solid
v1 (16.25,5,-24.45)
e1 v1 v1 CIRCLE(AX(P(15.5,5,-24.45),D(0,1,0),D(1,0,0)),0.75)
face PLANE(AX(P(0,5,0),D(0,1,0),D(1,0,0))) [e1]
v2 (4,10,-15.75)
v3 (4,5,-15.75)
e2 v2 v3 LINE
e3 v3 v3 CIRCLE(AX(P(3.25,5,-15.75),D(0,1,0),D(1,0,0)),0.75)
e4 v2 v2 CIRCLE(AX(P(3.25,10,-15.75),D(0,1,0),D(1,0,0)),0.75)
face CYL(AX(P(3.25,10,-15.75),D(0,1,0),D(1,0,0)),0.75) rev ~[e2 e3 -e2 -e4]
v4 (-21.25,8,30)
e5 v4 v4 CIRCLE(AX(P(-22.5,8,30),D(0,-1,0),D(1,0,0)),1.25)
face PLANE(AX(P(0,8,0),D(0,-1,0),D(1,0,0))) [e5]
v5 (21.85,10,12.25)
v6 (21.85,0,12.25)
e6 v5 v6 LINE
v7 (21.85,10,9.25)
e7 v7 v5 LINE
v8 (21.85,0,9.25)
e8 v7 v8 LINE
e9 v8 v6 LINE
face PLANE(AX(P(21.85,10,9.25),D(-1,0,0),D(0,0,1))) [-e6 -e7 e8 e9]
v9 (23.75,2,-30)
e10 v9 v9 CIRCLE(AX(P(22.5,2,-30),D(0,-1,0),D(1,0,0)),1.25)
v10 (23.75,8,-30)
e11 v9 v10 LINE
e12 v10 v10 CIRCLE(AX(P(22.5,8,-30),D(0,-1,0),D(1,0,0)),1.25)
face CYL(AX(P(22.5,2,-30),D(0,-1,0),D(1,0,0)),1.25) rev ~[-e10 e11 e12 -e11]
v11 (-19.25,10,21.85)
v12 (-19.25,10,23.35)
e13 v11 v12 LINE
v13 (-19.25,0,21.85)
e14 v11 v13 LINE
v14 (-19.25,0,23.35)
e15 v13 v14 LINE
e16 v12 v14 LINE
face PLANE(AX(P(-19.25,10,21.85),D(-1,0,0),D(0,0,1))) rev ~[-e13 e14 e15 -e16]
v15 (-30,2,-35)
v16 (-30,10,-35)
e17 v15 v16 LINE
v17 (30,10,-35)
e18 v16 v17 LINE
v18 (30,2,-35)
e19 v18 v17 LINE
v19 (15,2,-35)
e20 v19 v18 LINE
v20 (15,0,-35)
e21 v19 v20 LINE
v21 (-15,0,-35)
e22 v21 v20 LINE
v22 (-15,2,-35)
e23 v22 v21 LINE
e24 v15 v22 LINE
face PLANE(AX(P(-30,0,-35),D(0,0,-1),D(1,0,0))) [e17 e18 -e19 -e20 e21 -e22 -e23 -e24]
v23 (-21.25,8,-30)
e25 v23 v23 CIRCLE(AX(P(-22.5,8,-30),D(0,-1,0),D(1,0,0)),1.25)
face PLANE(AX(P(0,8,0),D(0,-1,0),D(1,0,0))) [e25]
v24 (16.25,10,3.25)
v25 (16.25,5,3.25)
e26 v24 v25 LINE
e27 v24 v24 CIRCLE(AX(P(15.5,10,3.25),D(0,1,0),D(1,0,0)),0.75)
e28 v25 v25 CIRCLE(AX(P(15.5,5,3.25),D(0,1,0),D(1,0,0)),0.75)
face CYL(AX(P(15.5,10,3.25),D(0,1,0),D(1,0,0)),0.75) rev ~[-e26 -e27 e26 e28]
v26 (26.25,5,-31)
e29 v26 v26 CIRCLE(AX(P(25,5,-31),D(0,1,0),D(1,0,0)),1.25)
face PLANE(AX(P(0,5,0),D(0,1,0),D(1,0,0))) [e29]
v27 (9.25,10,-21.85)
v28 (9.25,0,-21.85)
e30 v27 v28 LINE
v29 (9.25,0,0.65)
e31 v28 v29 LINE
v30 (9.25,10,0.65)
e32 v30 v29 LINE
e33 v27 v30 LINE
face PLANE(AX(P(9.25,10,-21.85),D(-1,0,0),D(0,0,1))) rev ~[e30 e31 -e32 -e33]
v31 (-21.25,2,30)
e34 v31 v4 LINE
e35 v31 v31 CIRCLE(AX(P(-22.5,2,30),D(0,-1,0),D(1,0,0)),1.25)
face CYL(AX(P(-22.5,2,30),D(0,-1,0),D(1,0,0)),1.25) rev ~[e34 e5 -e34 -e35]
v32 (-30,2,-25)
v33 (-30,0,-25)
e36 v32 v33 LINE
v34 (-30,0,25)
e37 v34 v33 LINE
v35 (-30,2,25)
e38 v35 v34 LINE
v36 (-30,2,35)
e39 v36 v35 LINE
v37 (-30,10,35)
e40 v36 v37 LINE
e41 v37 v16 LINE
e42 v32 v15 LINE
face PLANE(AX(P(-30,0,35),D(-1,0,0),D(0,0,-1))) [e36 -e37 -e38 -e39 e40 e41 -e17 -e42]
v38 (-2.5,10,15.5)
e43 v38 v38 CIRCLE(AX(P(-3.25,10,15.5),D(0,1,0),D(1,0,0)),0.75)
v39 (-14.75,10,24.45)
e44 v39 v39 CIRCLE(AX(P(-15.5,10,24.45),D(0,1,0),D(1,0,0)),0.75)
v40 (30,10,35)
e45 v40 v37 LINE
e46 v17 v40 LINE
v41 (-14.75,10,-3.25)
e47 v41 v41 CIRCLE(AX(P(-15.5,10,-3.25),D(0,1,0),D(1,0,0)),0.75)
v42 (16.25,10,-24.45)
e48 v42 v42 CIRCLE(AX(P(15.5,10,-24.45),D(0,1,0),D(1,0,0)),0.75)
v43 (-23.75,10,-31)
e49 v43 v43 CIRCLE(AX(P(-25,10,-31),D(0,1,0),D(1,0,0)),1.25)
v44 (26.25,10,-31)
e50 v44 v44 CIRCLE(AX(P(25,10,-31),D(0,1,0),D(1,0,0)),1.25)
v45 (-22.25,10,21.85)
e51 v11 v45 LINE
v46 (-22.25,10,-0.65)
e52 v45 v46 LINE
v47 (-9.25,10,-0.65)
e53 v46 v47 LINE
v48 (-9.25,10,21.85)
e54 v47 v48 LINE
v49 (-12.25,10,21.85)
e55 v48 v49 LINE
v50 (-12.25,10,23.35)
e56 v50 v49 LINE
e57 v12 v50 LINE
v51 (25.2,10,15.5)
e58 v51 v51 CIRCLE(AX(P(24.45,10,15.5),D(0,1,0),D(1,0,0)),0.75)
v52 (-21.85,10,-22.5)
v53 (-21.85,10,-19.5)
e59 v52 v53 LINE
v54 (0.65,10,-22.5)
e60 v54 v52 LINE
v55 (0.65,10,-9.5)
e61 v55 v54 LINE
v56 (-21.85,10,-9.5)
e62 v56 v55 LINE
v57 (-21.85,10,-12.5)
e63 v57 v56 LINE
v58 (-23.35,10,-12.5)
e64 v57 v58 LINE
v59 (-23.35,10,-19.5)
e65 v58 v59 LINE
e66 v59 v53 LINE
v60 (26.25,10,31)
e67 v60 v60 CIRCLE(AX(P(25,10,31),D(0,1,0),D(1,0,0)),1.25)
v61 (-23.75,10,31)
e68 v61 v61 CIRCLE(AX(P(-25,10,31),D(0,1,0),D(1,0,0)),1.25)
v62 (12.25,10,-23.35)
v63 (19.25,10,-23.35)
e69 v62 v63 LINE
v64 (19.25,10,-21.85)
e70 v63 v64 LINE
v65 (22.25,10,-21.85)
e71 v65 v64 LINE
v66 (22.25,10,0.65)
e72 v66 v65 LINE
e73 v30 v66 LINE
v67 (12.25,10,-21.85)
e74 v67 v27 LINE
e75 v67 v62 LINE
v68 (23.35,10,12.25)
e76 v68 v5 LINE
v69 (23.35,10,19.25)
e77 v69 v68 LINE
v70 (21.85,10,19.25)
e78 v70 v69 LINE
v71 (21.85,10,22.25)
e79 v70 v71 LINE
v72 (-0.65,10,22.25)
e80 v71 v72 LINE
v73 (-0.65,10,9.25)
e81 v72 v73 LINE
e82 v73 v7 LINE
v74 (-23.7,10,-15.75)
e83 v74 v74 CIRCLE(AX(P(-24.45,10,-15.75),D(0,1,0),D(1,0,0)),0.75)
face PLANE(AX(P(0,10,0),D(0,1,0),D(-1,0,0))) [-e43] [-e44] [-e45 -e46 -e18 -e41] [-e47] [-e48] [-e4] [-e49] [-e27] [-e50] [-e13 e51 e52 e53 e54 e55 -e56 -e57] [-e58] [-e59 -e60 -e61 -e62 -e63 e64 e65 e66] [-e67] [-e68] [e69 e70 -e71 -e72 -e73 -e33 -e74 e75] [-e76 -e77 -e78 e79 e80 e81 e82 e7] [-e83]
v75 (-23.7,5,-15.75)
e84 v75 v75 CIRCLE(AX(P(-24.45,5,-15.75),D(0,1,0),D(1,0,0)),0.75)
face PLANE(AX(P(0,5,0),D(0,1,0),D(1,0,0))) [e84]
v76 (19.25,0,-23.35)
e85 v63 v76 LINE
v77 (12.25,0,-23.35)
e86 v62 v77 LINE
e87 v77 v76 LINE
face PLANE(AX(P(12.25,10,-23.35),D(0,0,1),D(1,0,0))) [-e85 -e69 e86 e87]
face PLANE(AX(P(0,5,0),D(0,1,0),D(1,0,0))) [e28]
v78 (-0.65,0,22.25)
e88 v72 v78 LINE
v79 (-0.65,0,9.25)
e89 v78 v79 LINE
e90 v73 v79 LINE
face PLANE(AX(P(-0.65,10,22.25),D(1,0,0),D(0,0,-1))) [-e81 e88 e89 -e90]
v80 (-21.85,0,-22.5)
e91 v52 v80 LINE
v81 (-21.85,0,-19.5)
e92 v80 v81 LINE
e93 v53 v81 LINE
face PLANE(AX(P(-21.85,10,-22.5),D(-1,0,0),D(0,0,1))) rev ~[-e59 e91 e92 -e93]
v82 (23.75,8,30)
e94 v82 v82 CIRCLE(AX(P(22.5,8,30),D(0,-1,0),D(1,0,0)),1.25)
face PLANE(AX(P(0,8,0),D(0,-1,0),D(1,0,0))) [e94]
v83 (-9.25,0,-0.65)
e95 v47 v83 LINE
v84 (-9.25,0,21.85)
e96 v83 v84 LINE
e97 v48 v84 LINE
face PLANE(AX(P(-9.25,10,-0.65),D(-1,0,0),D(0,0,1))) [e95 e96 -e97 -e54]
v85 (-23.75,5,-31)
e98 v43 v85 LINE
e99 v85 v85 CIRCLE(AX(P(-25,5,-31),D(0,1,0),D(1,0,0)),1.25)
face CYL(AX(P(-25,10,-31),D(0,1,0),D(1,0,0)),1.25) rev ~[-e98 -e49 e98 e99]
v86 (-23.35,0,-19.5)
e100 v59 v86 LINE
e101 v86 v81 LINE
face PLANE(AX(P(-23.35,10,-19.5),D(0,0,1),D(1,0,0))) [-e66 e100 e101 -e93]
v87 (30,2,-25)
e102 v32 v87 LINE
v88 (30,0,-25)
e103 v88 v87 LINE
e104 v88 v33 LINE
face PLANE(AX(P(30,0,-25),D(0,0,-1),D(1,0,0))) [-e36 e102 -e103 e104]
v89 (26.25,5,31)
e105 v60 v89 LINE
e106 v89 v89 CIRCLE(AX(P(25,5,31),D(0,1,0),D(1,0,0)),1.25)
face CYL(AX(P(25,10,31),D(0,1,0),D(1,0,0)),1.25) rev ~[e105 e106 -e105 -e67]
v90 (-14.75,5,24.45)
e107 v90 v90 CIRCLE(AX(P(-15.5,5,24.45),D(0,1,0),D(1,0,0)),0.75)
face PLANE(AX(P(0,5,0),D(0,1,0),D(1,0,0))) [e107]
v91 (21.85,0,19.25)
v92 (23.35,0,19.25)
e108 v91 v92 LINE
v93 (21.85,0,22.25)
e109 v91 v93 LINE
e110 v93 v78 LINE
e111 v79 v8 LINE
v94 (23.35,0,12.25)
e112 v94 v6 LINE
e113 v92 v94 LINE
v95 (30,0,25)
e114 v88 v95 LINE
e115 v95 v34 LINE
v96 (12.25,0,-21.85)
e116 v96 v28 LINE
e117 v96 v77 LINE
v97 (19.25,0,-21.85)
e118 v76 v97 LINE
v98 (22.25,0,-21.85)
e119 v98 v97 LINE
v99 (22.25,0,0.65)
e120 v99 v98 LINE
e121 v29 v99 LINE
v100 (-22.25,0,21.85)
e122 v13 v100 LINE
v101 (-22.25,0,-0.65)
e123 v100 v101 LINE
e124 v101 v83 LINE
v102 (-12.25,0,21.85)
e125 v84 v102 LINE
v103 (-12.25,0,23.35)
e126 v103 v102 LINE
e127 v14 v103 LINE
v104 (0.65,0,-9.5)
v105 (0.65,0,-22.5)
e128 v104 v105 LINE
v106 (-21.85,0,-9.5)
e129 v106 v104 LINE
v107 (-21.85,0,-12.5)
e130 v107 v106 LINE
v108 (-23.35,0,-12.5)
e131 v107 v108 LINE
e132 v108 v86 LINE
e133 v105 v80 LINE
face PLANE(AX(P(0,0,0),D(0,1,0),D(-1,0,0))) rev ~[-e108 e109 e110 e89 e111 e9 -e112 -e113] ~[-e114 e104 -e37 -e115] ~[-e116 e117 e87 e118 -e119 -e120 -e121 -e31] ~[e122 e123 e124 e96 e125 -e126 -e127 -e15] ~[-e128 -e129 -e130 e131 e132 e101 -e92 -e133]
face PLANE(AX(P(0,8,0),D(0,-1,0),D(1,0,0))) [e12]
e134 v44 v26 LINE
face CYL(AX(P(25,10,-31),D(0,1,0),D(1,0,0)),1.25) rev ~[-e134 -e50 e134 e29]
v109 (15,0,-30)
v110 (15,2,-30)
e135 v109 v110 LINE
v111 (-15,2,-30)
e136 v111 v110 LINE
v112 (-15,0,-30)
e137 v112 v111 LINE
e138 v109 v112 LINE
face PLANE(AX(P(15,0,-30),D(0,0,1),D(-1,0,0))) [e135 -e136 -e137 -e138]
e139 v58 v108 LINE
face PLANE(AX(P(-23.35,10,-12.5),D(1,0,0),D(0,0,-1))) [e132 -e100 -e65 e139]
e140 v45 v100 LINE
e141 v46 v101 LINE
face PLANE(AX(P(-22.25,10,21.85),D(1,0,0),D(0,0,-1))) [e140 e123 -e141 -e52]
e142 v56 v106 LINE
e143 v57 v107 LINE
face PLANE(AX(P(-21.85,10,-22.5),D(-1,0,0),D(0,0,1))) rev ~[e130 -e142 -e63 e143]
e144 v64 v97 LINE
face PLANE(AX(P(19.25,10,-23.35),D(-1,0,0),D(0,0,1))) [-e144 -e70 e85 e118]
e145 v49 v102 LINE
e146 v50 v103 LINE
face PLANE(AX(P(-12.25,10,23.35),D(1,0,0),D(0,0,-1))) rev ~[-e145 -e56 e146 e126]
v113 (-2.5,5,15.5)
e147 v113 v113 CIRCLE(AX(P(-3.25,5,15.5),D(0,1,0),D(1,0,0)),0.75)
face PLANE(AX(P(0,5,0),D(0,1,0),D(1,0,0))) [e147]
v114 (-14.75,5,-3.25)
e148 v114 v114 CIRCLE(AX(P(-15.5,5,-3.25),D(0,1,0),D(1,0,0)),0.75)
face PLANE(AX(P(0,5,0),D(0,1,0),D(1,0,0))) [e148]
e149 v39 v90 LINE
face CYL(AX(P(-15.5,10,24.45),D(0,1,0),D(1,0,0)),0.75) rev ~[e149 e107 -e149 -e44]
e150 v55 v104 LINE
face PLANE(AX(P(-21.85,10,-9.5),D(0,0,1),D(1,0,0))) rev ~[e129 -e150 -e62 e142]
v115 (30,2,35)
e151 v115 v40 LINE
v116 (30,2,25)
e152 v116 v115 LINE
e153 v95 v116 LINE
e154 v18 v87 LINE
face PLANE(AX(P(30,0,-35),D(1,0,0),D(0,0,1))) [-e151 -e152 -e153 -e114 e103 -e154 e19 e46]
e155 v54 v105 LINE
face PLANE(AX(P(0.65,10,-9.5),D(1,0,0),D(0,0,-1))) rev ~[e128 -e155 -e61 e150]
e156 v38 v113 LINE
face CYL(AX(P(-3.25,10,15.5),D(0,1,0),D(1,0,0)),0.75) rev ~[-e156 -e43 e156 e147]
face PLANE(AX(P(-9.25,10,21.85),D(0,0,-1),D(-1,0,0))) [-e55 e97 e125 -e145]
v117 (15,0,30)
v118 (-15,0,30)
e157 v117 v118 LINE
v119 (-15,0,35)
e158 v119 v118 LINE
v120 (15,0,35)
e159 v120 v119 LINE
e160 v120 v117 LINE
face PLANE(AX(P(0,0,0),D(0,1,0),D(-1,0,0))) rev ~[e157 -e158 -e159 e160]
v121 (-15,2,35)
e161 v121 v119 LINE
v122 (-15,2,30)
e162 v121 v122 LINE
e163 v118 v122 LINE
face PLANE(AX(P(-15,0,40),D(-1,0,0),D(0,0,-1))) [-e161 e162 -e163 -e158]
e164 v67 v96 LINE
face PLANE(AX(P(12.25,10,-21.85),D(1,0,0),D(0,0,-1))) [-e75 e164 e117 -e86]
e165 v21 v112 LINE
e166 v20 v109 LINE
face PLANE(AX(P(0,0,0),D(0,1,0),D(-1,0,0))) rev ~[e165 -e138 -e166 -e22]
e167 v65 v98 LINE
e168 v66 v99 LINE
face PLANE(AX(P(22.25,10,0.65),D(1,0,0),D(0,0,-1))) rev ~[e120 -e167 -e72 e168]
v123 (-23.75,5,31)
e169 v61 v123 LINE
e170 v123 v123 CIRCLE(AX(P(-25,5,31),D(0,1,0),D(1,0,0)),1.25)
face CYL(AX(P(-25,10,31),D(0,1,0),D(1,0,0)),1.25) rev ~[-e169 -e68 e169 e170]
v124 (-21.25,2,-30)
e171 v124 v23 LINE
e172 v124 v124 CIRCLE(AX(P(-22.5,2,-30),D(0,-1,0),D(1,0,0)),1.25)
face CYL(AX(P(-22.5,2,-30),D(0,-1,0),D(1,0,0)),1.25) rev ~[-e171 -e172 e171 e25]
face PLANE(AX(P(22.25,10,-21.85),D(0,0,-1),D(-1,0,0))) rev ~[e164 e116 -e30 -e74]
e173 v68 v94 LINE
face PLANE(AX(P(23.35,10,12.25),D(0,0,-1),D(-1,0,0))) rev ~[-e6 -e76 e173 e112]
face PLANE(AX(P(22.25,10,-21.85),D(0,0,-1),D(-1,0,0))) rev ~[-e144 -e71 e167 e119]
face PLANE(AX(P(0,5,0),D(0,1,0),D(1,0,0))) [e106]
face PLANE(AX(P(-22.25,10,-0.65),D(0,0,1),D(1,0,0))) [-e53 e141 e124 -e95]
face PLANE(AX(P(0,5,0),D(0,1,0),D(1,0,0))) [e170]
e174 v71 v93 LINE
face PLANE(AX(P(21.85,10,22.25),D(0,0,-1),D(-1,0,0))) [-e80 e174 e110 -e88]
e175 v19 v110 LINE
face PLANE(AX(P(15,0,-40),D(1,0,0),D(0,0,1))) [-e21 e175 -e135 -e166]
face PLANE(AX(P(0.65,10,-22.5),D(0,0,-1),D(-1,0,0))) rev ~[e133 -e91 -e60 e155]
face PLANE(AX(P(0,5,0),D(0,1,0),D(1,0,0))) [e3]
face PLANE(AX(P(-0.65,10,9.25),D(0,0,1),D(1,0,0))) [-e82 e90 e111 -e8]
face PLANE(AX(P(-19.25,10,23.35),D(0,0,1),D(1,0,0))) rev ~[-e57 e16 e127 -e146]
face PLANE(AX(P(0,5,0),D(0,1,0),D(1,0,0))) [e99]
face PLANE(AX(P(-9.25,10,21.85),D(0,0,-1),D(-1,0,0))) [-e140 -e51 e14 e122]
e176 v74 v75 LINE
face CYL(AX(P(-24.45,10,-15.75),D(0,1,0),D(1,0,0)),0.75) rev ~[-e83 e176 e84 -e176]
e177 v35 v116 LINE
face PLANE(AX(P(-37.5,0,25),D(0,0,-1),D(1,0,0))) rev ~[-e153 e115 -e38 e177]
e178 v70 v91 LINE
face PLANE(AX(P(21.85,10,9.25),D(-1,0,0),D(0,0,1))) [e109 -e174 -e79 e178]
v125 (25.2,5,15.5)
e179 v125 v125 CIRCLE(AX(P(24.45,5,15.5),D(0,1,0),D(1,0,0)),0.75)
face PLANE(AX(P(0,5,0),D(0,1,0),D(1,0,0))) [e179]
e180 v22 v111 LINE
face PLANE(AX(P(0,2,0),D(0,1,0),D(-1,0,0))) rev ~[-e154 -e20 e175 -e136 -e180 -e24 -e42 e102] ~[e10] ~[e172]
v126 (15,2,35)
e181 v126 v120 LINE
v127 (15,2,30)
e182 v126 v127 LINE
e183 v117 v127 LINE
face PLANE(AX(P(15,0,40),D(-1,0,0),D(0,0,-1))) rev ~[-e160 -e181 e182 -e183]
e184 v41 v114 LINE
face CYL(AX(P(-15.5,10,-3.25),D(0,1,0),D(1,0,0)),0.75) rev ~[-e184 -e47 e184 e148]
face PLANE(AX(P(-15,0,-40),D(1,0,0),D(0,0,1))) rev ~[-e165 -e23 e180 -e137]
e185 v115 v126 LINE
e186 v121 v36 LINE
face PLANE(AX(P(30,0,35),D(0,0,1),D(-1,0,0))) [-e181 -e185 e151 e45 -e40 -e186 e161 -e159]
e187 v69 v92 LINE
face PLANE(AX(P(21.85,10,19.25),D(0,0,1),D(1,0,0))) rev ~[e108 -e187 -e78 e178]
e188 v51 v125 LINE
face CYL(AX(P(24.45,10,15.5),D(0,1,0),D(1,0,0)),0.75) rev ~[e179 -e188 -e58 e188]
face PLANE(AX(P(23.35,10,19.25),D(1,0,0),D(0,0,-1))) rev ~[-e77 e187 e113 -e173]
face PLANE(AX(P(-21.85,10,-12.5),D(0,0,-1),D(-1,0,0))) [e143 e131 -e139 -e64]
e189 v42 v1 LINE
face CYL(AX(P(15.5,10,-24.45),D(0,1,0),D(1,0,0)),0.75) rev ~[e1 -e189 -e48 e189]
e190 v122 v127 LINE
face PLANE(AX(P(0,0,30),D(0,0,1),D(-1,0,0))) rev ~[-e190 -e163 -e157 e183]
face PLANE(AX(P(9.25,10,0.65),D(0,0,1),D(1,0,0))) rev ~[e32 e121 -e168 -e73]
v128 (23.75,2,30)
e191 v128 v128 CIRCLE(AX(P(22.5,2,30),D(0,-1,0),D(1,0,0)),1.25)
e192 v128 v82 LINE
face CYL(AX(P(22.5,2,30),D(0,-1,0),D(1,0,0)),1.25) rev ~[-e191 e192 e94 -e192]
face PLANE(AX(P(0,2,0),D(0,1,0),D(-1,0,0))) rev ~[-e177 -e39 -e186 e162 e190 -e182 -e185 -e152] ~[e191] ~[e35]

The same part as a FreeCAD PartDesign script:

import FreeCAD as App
import Part
import Sketcher
from FreeCAD import Vector
Q = App.Units.Quantity

doc = App.newDocument("Part")
params = doc.addObject("Spreadsheet::Sheet", "Params")
for row, (alias, value) in enumerate([
    ("sketch1_width", "60 mm"),
    ("sketch1_height", "70 mm"),
    ("pad1_length", "10 mm"),
    ("sketch2_diameter", "3.5 mm"),
    ("pocket1_length", "10 mm"),
    ("sketch3_diameter", "10 mm"),
    ("pocket2_length", "7 mm"),
    ("sketch4_width", "75 mm"),
    ("sketch4_height", "15 mm"),
    ("sketch4_height2", "10 mm"),
    ("sketch4_width2", "22.5 mm"),
    ("pocket3_length", "2 mm"),
    ("sketch5_diameter", "2.5 mm"),
    ("pocket4_length", "6 mm"),
    ("sketch6_width", "13 mm"),
    ("sketch6_width2", "22.5 mm"),
    ("sketch6_diameter", "3.5 mm"),
    ("pocket5_length", "10 mm"),
    ("sketch7_diameter", "1.5 mm"),
    ("pocket6_length", "5 mm"),
    ("sketch8_diameter", "2.5 mm"),
    ("pocket7_length", "5 mm"),
    ("sketch9_width", "1.5 mm"),
    ("sketch9_width2", "7 mm"),
    ("pocket8_length", "10 mm"),
], start=1):
    params.set(f"A{row}", alias)
    params.set(f"B{row}", "=" + value)
    params.setAlias(f"B{row}", alias)

body = doc.addObject("PartDesign::Body", "Body")

# Sketch on XZ plane
sketch1 = body.newObject("Sketcher::SketchObject", "Sketch")
sketch1.AttachmentSupport = (doc.getObject("XZ_Plane"), [""])
sketch1.MapMode = "FlatFace"
sketch1.addGeometry([
    Part.LineSegment(Vector(30, -35, 0), Vector(-30, -35, 0)),
    Part.LineSegment(Vector(-30, -35, 0), Vector(-30, 35, 0)),
    Part.LineSegment(Vector(-30, 35, 0), Vector(30, 35, 0)),
    Part.LineSegment(Vector(30, 35, 0), Vector(30, -35, 0)),
], False)
sketch1.addConstraint([
    Sketcher.Constraint("Coincident", 0, 2, 1, 1),
    Sketcher.Constraint("Coincident", 1, 2, 2, 1),
    Sketcher.Constraint("Coincident", 2, 2, 3, 1),
    Sketcher.Constraint("Coincident", 3, 2, 0, 1),
    Sketcher.Constraint("Horizontal", 0),
    Sketcher.Constraint("Vertical", 1),
    Sketcher.Constraint("Horizontal", 2),
    Sketcher.Constraint("Vertical", 3),
    Sketcher.Constraint("Symmetric", 0, 2, 2, 2, -1, 1),
    Sketcher.Constraint("DistanceX", 0, 2, 0, 1, Q("60 mm")),
    Sketcher.Constraint("DistanceY", 1, 1, 1, 2, Q("70 mm")),
])
sketch1.setExpression("Constraints[9]", "Params.sketch1_width")
sketch1.setExpression("Constraints[10]", "Params.sketch1_height")
pad1 = body.newObject("PartDesign::Pad", "Pad")
pad1.Profile = sketch1
pad1.setExpression("Length", "Params.pad1_length")
pad1.Reversed = True

# Sketch on XZ plane
sketch2 = body.newObject("Sketcher::SketchObject", "Sketch001")
sketch2.AttachmentSupport = (doc.getObject("XZ_Plane"), [""])
sketch2.MapMode = "FlatFace"
sketch2.AttachmentOffset = App.Placement(Vector(0, 0, -10), App.Rotation())
sketch2.addGeometry([
    Part.Circle(Vector(-15.75, -15.75, 0), Vector(0, 0, 1), 1.75),
    Part.Circle(Vector(15.75, -15.75, 0), Vector(0, 0, 1), 1.75),
    Part.Circle(Vector(15.75, 15.75, 0), Vector(0, 0, 1), 1.75),
    Part.Circle(Vector(-15.75, 15.75, 0), Vector(0, 0, 1), 1.75),
], False)
sketch2.addConstraint([
    Sketcher.Constraint("Equal", 0, 1),
    Sketcher.Constraint("Equal", 1, 2),
    Sketcher.Constraint("Equal", 2, 3),
    Sketcher.Constraint("Symmetric", 0, 3, 2, 3, -1, 1),
    Sketcher.Constraint("Symmetric", 1, 3, 3, 3, -1, 1),
    Sketcher.Constraint("Symmetric", 0, 3, 1, 3, -2),
    Sketcher.Constraint("Diameter", 0, Q("3.5 mm")),
    Sketcher.Constraint("DistanceX", 0, 3, 1, 3, Q("31.5 mm")),
    Sketcher.Constraint("DistanceY", 1, 3, 2, 3, Q("31.5 mm")),
])
sketch2.setExpression("Constraints[6]", "Params.sketch2_diameter")
pocket1 = body.newObject("PartDesign::Pocket", "Pocket")
pocket1.Profile = sketch2
pocket1.setExpression("Length", "Params.pocket1_length")
pocket1.Reversed = True

# Sketch on XZ plane
sketch3 = body.newObject("Sketcher::SketchObject", "Sketch002")
sketch3.AttachmentSupport = (doc.getObject("XZ_Plane"), [""])
sketch3.MapMode = "FlatFace"
sketch3.AttachmentOffset = App.Placement(Vector(0, 0, -10), App.Rotation())
sketch3.addGeometry([
    Part.Circle(Vector(-15.75, -15.75, 0), Vector(0, 0, 1), 5),
    Part.Circle(Vector(15.75, -15.75, 0), Vector(0, 0, 1), 5),
    Part.Circle(Vector(15.75, 15.75, 0), Vector(0, 0, 1), 5),
    Part.Circle(Vector(-15.75, 15.75, 0), Vector(0, 0, 1), 5),
], False)
sketch3.addConstraint([
    Sketcher.Constraint("Equal", 0, 1),
    Sketcher.Constraint("Equal", 1, 2),
    Sketcher.Constraint("Equal", 2, 3),
    Sketcher.Constraint("Symmetric", 0, 3, 2, 3, -1, 1),
    Sketcher.Constraint("Symmetric", 1, 3, 3, 3, -1, 1),
    Sketcher.Constraint("Symmetric", 0, 3, 1, 3, -2),
    Sketcher.Constraint("Diameter", 0, Q("10 mm")),
    Sketcher.Constraint("DistanceX", 0, 3, 1, 3, Q("31.5 mm")),
    Sketcher.Constraint("DistanceY", 1, 3, 2, 3, Q("31.5 mm")),
])
sketch3.setExpression("Constraints[6]", "Params.sketch3_diameter")
pocket2 = body.newObject("PartDesign::Pocket", "Pocket001")
pocket2.Profile = sketch3
pocket2.setExpression("Length", "Params.pocket2_length")
pocket2.Reversed = True

# Sketch on XZ plane
sketch4 = body.newObject("Sketcher::SketchObject", "Sketch003")
sketch4.AttachmentSupport = (doc.getObject("XZ_Plane"), [""])
sketch4.MapMode = "FlatFace"
sketch4.addGeometry([
    Part.LineSegment(Vector(-37.5, 25, 0), Vector(-37.5, 40, 0)),  # 0
    Part.LineSegment(Vector(-37.5, 40, 0), Vector(-15, 40, 0)),  # 1
    Part.LineSegment(Vector(-15, 40, 0), Vector(-15, 30, 0)),  # 2
    Part.LineSegment(Vector(-15, 30, 0), Vector(15, 30, 0)),  # 3
    Part.LineSegment(Vector(15, 30, 0), Vector(15, 40, 0)),  # 4
    Part.LineSegment(Vector(15, 40, 0), Vector(37.5, 40, 0)),  # 5
    Part.LineSegment(Vector(37.5, 40, 0), Vector(37.5, 25, 0)),  # 6
    Part.LineSegment(Vector(37.5, 25, 0), Vector(-37.5, 25, 0)),  # 7
    Part.LineSegment(Vector(15, -30, 0), Vector(-15, -30, 0)),  # 8
    Part.LineSegment(Vector(-15, -30, 0), Vector(-15, -40, 0)),  # 9
    Part.LineSegment(Vector(-15, -40, 0), Vector(-37.5, -40, 0)),  # 10
    Part.LineSegment(Vector(-37.5, -40, 0), Vector(-37.5, -25, 0)),  # 11
    Part.LineSegment(Vector(-37.5, -25, 0), Vector(37.5, -25, 0)),  # 12
    Part.LineSegment(Vector(37.5, -25, 0), Vector(37.5, -40, 0)),  # 13
    Part.LineSegment(Vector(37.5, -40, 0), Vector(15, -40, 0)),  # 14
    Part.LineSegment(Vector(15, -40, 0), Vector(15, -30, 0)),  # 15
], False)
sketch4.addConstraint([
    Sketcher.Constraint("Coincident", 0, 2, 1, 1),
    Sketcher.Constraint("Coincident", 1, 2, 2, 1),
    Sketcher.Constraint("Coincident", 2, 2, 3, 1),
    Sketcher.Constraint("Coincident", 3, 2, 4, 1),
    Sketcher.Constraint("Coincident", 4, 2, 5, 1),
    Sketcher.Constraint("Coincident", 5, 2, 6, 1),
    Sketcher.Constraint("Coincident", 6, 2, 7, 1),
    Sketcher.Constraint("Coincident", 7, 2, 0, 1),
    Sketcher.Constraint("Coincident", 8, 2, 9, 1),
    Sketcher.Constraint("Coincident", 9, 2, 10, 1),
    Sketcher.Constraint("Coincident", 10, 2, 11, 1),
    Sketcher.Constraint("Coincident", 11, 2, 12, 1),
    Sketcher.Constraint("Coincident", 12, 2, 13, 1),
    Sketcher.Constraint("Coincident", 13, 2, 14, 1),
    Sketcher.Constraint("Coincident", 14, 2, 15, 1),
    Sketcher.Constraint("Coincident", 15, 2, 8, 1),
    Sketcher.Constraint("Vertical", 0),
    Sketcher.Constraint("Horizontal", 1),
    Sketcher.Constraint("Vertical", 2),
    Sketcher.Constraint("Horizontal", 3),
    Sketcher.Constraint("Vertical", 4),
    Sketcher.Constraint("Horizontal", 5),
    Sketcher.Constraint("Vertical", 6),
    Sketcher.Constraint("Horizontal", 7),
    Sketcher.Constraint("Horizontal", 8),
    Sketcher.Constraint("Vertical", 9),
    Sketcher.Constraint("Horizontal", 10),
    Sketcher.Constraint("Vertical", 11),
    Sketcher.Constraint("Horizontal", 12),
    Sketcher.Constraint("Vertical", 13),
    Sketcher.Constraint("Horizontal", 14),
    Sketcher.Constraint("Vertical", 15),
    Sketcher.Constraint("Symmetric", 3, 2, 8, 2, -1, 1),
    Sketcher.Constraint("Symmetric", 5, 2, 10, 2, -1, 1),
    Sketcher.Constraint("Symmetric", 7, 2, 12, 2, -1, 1),
    Sketcher.Constraint("Symmetric", 1, 2, 14, 2, -1, 1),
    Sketcher.Constraint("Symmetric", 1, 2, 4, 2, -2),
    Sketcher.Constraint("Vertical", 7, 2, 10, 2),
    Sketcher.Constraint("DistanceX", 7, 2, 7, 1, Q("75 mm")),
    Sketcher.Constraint("DistanceY", 0, 1, 0, 2, Q("15 mm")),
    Sketcher.Constraint("DistanceY", 2, 2, 2, 1, Q("10 mm")),
    Sketcher.Constraint("DistanceX", 1, 1, 1, 2, Q("22.5 mm")),
    Sketcher.Constraint("DistanceY", -1, 1, 6, 2, Q("25 mm")),
])
sketch4.setExpression("Constraints[38]", "Params.sketch4_width")
sketch4.setExpression("Constraints[39]", "Params.sketch4_height")
sketch4.setExpression("Constraints[40]", "Params.sketch4_height2")
sketch4.setExpression("Constraints[41]", "Params.sketch4_width2")
pocket3 = body.newObject("PartDesign::Pocket", "Pocket002")
pocket3.Profile = sketch4
pocket3.setExpression("Length", "Params.pocket3_length")

# Sketch on XZ plane
sketch5 = body.newObject("Sketcher::SketchObject", "Sketch004")
sketch5.AttachmentSupport = (doc.getObject("XZ_Plane"), [""])
sketch5.MapMode = "FlatFace"
sketch5.AttachmentOffset = App.Placement(Vector(0, 0, -2), App.Rotation())
sketch5.addGeometry([
    Part.Circle(Vector(-22.5, 30, 0), Vector(0, 0, 1), 1.25),
    Part.Circle(Vector(22.5, 30, 0), Vector(0, 0, 1), 1.25),
    Part.Circle(Vector(22.5, -30, 0), Vector(0, 0, 1), 1.25),
    Part.Circle(Vector(-22.5, -30, 0), Vector(0, 0, 1), 1.25),
], False)
sketch5.addConstraint([
    Sketcher.Constraint("Equal", 0, 1),
    Sketcher.Constraint("Equal", 1, 2),
    Sketcher.Constraint("Equal", 2, 3),
    Sketcher.Constraint("Symmetric", 0, 3, 2, 3, -1, 1),
    Sketcher.Constraint("Symmetric", 1, 3, 3, 3, -1, 1),
    Sketcher.Constraint("Symmetric", 0, 3, 1, 3, -2),
    Sketcher.Constraint("Diameter", 0, Q("2.5 mm")),
    Sketcher.Constraint("DistanceY", -1, 1, 0, 3, Q("30 mm")),
    Sketcher.Constraint("DistanceX", 0, 3, 1, 3, Q("45 mm")),
])
sketch5.setExpression("Constraints[6]", "Params.sketch5_diameter")
pocket4 = body.newObject("PartDesign::Pocket", "Pocket003")
pocket4.Profile = sketch5
pocket4.setExpression("Length", "Params.pocket4_length")

# Sketch on XZ plane
sketch6 = body.newObject("Sketcher::SketchObject", "Sketch005")
sketch6.AttachmentSupport = (doc.getObject("XZ_Plane"), [""])
sketch6.MapMode = "FlatFace"
sketch6.AttachmentOffset = App.Placement(Vector(0, 0, -10), App.Rotation())
sketch6.addGeometry([
    Part.LineSegment(Vector(-22.25, 21.85, 0), Vector(-9.25, 21.85, 0)),  # 0
    Part.LineSegment(Vector(-9.25, 21.85, 0), Vector(-9.25, -0.65, 0)),  # 1
    Part.LineSegment(Vector(-9.25, -0.65, 0), Vector(-22.25, -0.65, 0)),  # 2
    Part.LineSegment(Vector(-22.25, -0.65, 0), Vector(-22.25, 21.85, 0)),  # 3
    Part.Circle(Vector(-15.75, 15.75, 0), Vector(0, 0, 1), 1.75),  # 4
    Part.LineSegment(Vector(-0.65, 22.25, 0), Vector(21.85, 22.25, 0)),  # 5
    Part.LineSegment(Vector(21.85, 22.25, 0), Vector(21.85, 9.25, 0)),  # 6
    Part.LineSegment(Vector(21.85, 9.25, 0), Vector(-0.65, 9.25, 0)),  # 7
    Part.LineSegment(Vector(-0.65, 9.25, 0), Vector(-0.65, 22.25, 0)),  # 8
    Part.LineSegment(Vector(22.25, 0.65, 0), Vector(22.25, -21.85, 0)),  # 9
    Part.LineSegment(Vector(22.25, -21.85, 0), Vector(9.25, -21.85, 0)),  # 10
    Part.LineSegment(Vector(9.25, -21.85, 0), Vector(9.25, 0.65, 0)),  # 11
    Part.LineSegment(Vector(9.25, 0.65, 0), Vector(22.25, 0.65, 0)),  # 12
    Part.LineSegment(Vector(-21.85, -22.5, 0), Vector(-21.85, -9.5, 0)),  # 13
    Part.LineSegment(Vector(-21.85, -9.5, 0), Vector(0.65, -9.5, 0)),  # 14
    Part.LineSegment(Vector(0.65, -9.5, 0), Vector(0.65, -22.5, 0)),  # 15
    Part.LineSegment(Vector(0.65, -22.5, 0), Vector(-21.85, -22.5, 0)),  # 16
], False)
sketch6.addConstraint([
    Sketcher.Constraint("Coincident", 0, 2, 1, 1),
    Sketcher.Constraint("Coincident", 1, 2, 2, 1),
    Sketcher.Constraint("Coincident", 2, 2, 3, 1),
    Sketcher.Constraint("Coincident", 3, 2, 0, 1),
    Sketcher.Constraint("Coincident", 5, 2, 6, 1),
    Sketcher.Constraint("Coincident", 6, 2, 7, 1),
    Sketcher.Constraint("Coincident", 7, 2, 8, 1),
    Sketcher.Constraint("Coincident", 8, 2, 5, 1),
    Sketcher.Constraint("Coincident", 9, 2, 10, 1),
    Sketcher.Constraint("Coincident", 10, 2, 11, 1),
    Sketcher.Constraint("Coincident", 11, 2, 12, 1),
    Sketcher.Constraint("Coincident", 12, 2, 9, 1),
    Sketcher.Constraint("Coincident", 13, 2, 14, 1),
    Sketcher.Constraint("Coincident", 14, 2, 15, 1),
    Sketcher.Constraint("Coincident", 15, 2, 16, 1),
    Sketcher.Constraint("Coincident", 16, 2, 13, 1),
    Sketcher.Constraint("Horizontal", 0),
    Sketcher.Constraint("Vertical", 1),
    Sketcher.Constraint("Horizontal", 2),
    Sketcher.Constraint("Vertical", 3),
    Sketcher.Constraint("Horizontal", 5),
    Sketcher.Constraint("Vertical", 6),
    Sketcher.Constraint("Horizontal", 7),
    Sketcher.Constraint("Vertical", 8),
    Sketcher.Constraint("Vertical", 9),
    Sketcher.Constraint("Horizontal", 10),
    Sketcher.Constraint("Vertical", 11),
    Sketcher.Constraint("Horizontal", 12),
    Sketcher.Constraint("Vertical", 13),
    Sketcher.Constraint("Horizontal", 14),
    Sketcher.Constraint("Vertical", 15),
    Sketcher.Constraint("Horizontal", 16),
    Sketcher.Constraint("Symmetric", 3, 2, 9, 2, -1, 1),
    Sketcher.Constraint("Symmetric", 1, 2, 11, 2, -1, 1),
    Sketcher.Constraint("Equal", 7, 14),
    Sketcher.Constraint("Equal", 16, 1),
    Sketcher.Constraint("Equal", 12, 6),
    Sketcher.Constraint("Equal", 8, 13),
    Sketcher.Constraint("DistanceX", 0, 1, 0, 2, Q("13 mm")),
    Sketcher.Constraint("DistanceX", 5, 1, 5, 2, Q("22.5 mm")),
    Sketcher.Constraint("Diameter", 4, Q("3.5 mm")),
    Sketcher.Constraint("DistanceY", 15, 2, -1, 1, Q("22.5 mm")),
    Sketcher.Constraint("DistanceX", 4, 3, 0, 2, Q("6.5 mm")),
    Sketcher.Constraint("DistanceY", 4, 3, 0, 2, Q("6.1 mm")),
    Sketcher.Constraint("DistanceY", 4, 3, 5, 2, Q("6.5 mm")),
    Sketcher.Constraint("DistanceX", 13, 2, 4, 3, Q("6.1 mm")),
    Sketcher.Constraint("DistanceX", 0, 2, 5, 2, Q("31.1 mm")),
    Sketcher.Constraint("DistanceX", 6, 2, 9, 2, Q("0.4 mm")),
    Sketcher.Constraint("DistanceY", 9, 2, 6, 2, Q("31.1 mm")),
])
sketch6.setExpression("Constraints[38]", "Params.sketch6_width")
sketch6.setExpression("Constraints[39]", "Params.sketch6_width2")
sketch6.setExpression("Constraints[40]", "Params.sketch6_diameter")
pocket5 = body.newObject("PartDesign::Pocket", "Pocket004")
pocket5.Profile = sketch6
pocket5.setExpression("Length", "Params.pocket5_length")
pocket5.Reversed = True

# Sketch on XZ plane
sketch7 = body.newObject("Sketcher::SketchObject", "Sketch006")
sketch7.AttachmentSupport = (doc.getObject("XZ_Plane"), [""])
sketch7.MapMode = "FlatFace"
sketch7.AttachmentOffset = App.Placement(Vector(0, 0, -10), App.Rotation())
sketch7.addGeometry([
    Part.Circle(Vector(-3.25, 15.5, 0), Vector(0, 0, 1), 0.75),  # 0
    Part.Circle(Vector(24.45, 15.5, 0), Vector(0, 0, 1), 0.75),  # 1
    Part.Circle(Vector(15.5, 3.25, 0), Vector(0, 0, 1), 0.75),  # 2
    Part.Circle(Vector(15.5, -24.45, 0), Vector(0, 0, 1), 0.75),  # 3
    Part.Circle(Vector(3.25, -15.75, 0), Vector(0, 0, 1), 0.75),  # 4
    Part.Circle(Vector(-24.45, -15.75, 0), Vector(0, 0, 1), 0.75),  # 5
    Part.Circle(Vector(-15.5, -3.25, 0), Vector(0, 0, 1), 0.75),  # 6
    Part.Circle(Vector(-15.5, 24.45, 0), Vector(0, 0, 1), 0.75),  # 7
], False)
sketch7.addConstraint([
    Sketcher.Constraint("Equal", 0, 1),
    Sketcher.Constraint("Equal", 1, 2),
    Sketcher.Constraint("Equal", 2, 3),
    Sketcher.Constraint("Equal", 3, 4),
    Sketcher.Constraint("Equal", 4, 5),
    Sketcher.Constraint("Equal", 5, 6),
    Sketcher.Constraint("Equal", 6, 7),
    Sketcher.Constraint("Symmetric", 2, 3, 6, 3, -1, 1),
    Sketcher.Constraint("Symmetric", 3, 3, 7, 3, -1, 1),
    Sketcher.Constraint("Horizontal", 0, 3, 1, 3),
    Sketcher.Constraint("Horizontal", 4, 3, 5, 3),
    Sketcher.Constraint("Vertical", 2, 3, 3, 3),
    Sketcher.Constraint("Diameter", 0, Q("1.5 mm")),
    Sketcher.Constraint("DistanceY", 4, 3, 2, 3, Q("19 mm")),
    Sketcher.Constraint("DistanceX", 6, 3, 2, 3, Q("31 mm")),
    Sketcher.Constraint("DistanceY", -1, 1, 0, 3, Q("15.5 mm")),
    Sketcher.Constraint("DistanceX", 0, 3, 1, 3, Q("27.7 mm")),
    Sketcher.Constraint("DistanceY", 3, 3, 2, 3, Q("27.7 mm")),
    Sketcher.Constraint("DistanceX", 0, 3, 4, 3, Q("6.5 mm")),
    Sketcher.Constraint("DistanceX", 5, 3, 4, 3, Q("27.7 mm")),
    Sketcher.Constraint("DistanceY", 5, 3, 6, 3, Q("12.5 mm")),
    Sketcher.Constraint("DistanceX", 0, 3, -1, 1, Q("3.25 mm")),
])
sketch7.setExpression("Constraints[12]", "Params.sketch7_diameter")
pocket6 = body.newObject("PartDesign::Pocket", "Pocket005")
pocket6.Profile = sketch7
pocket6.setExpression("Length", "Params.pocket6_length")
pocket6.Reversed = True

# Sketch on XZ plane
sketch8 = body.newObject("Sketcher::SketchObject", "Sketch007")
sketch8.AttachmentSupport = (doc.getObject("XZ_Plane"), [""])
sketch8.MapMode = "FlatFace"
sketch8.AttachmentOffset = App.Placement(Vector(0, 0, -10), App.Rotation())
sketch8.addGeometry([
    Part.Circle(Vector(25, 31, 0), Vector(0, 0, 1), 1.25),
    Part.Circle(Vector(-25, 31, 0), Vector(0, 0, 1), 1.25),
    Part.Circle(Vector(-25, -31, 0), Vector(0, 0, 1), 1.25),
    Part.Circle(Vector(25, -31, 0), Vector(0, 0, 1), 1.25),
], False)
sketch8.addConstraint([
    Sketcher.Constraint("Equal", 0, 1),
    Sketcher.Constraint("Equal", 1, 2),
    Sketcher.Constraint("Equal", 2, 3),
    Sketcher.Constraint("Symmetric", 0, 3, 2, 3, -1, 1),
    Sketcher.Constraint("Symmetric", 1, 3, 3, 3, -1, 1),
    Sketcher.Constraint("Symmetric", 0, 3, 1, 3, -2),
    Sketcher.Constraint("Diameter", 0, Q("2.5 mm")),
    Sketcher.Constraint("DistanceX", 1, 3, 0, 3, Q("50 mm")),
    Sketcher.Constraint("DistanceY", 2, 3, 1, 3, Q("62 mm")),
])
sketch8.setExpression("Constraints[6]", "Params.sketch8_diameter")
pocket7 = body.newObject("PartDesign::Pocket", "Pocket006")
pocket7.Profile = sketch8
pocket7.setExpression("Length", "Params.pocket7_length")
pocket7.Reversed = True

# Sketch on XZ plane
sketch9 = body.newObject("Sketcher::SketchObject", "Sketch008")
sketch9.AttachmentSupport = (doc.getObject("XZ_Plane"), [""])
sketch9.MapMode = "FlatFace"
sketch9.AttachmentOffset = App.Placement(Vector(0, 0, -10), App.Rotation())
sketch9.addGeometry([
    Part.LineSegment(Vector(-21.85, -12.5, 0), Vector(-21.85, -19.5, 0)),  # 0
    Part.LineSegment(Vector(-21.85, -19.5, 0), Vector(-23.35, -19.5, 0)),  # 1
    Part.LineSegment(Vector(-23.35, -19.5, 0), Vector(-23.35, -12.5, 0)),  # 2
    Part.LineSegment(Vector(-23.35, -12.5, 0), Vector(-21.85, -12.5, 0)),  # 3
    Part.LineSegment(Vector(12.25, -23.35, 0), Vector(12.25, -21.85, 0)),  # 4
    Part.LineSegment(Vector(12.25, -21.85, 0), Vector(19.25, -21.85, 0)),  # 5
    Part.LineSegment(Vector(19.25, -21.85, 0), Vector(19.25, -23.35, 0)),  # 6
    Part.LineSegment(Vector(19.25, -23.35, 0), Vector(12.25, -23.35, 0)),  # 7
    Part.LineSegment(Vector(23.35, 12.25, 0), Vector(21.85, 12.25, 0)),  # 8
    Part.LineSegment(Vector(21.85, 12.25, 0), Vector(21.85, 19.25, 0)),  # 9
    Part.LineSegment(Vector(21.85, 19.25, 0), Vector(23.35, 19.25, 0)),  # 10
    Part.LineSegment(Vector(23.35, 19.25, 0), Vector(23.35, 12.25, 0)),  # 11
    Part.LineSegment(Vector(-12.25, 23.35, 0), Vector(-12.25, 21.85, 0)),  # 12
    Part.LineSegment(Vector(-12.25, 21.85, 0), Vector(-19.25, 21.85, 0)),  # 13
    Part.LineSegment(Vector(-19.25, 21.85, 0), Vector(-19.25, 23.35, 0)),  # 14
    Part.LineSegment(Vector(-19.25, 23.35, 0), Vector(-12.25, 23.35, 0)),  # 15
], False)
sketch9.addConstraint([
    Sketcher.Constraint("Coincident", 0, 2, 1, 1),
    Sketcher.Constraint("Coincident", 1, 2, 2, 1),
    Sketcher.Constraint("Coincident", 2, 2, 3, 1),
    Sketcher.Constraint("Coincident", 3, 2, 0, 1),
    Sketcher.Constraint("Coincident", 4, 2, 5, 1),
    Sketcher.Constraint("Coincident", 5, 2, 6, 1),
    Sketcher.Constraint("Coincident", 6, 2, 7, 1),
    Sketcher.Constraint("Coincident", 7, 2, 4, 1),
    Sketcher.Constraint("Coincident", 8, 2, 9, 1),
    Sketcher.Constraint("Coincident", 9, 2, 10, 1),
    Sketcher.Constraint("Coincident", 10, 2, 11, 1),
    Sketcher.Constraint("Coincident", 11, 2, 8, 1),
    Sketcher.Constraint("Coincident", 12, 2, 13, 1),
    Sketcher.Constraint("Coincident", 13, 2, 14, 1),
    Sketcher.Constraint("Coincident", 14, 2, 15, 1),
    Sketcher.Constraint("Coincident", 15, 2, 12, 1),
    Sketcher.Constraint("Vertical", 0),
    Sketcher.Constraint("Horizontal", 1),
    Sketcher.Constraint("Vertical", 2),
    Sketcher.Constraint("Horizontal", 3),
    Sketcher.Constraint("Vertical", 4),
    Sketcher.Constraint("Horizontal", 5),
    Sketcher.Constraint("Vertical", 6),
    Sketcher.Constraint("Horizontal", 7),
    Sketcher.Constraint("Horizontal", 8),
    Sketcher.Constraint("Vertical", 9),
    Sketcher.Constraint("Horizontal", 10),
    Sketcher.Constraint("Vertical", 11),
    Sketcher.Constraint("Vertical", 12),
    Sketcher.Constraint("Horizontal", 13),
    Sketcher.Constraint("Vertical", 14),
    Sketcher.Constraint("Horizontal", 15),
    Sketcher.Constraint("Symmetric", 4, 2, 12, 2, -1, 1),
    Sketcher.Constraint("Symmetric", 6, 2, 14, 2, -1, 1),
    Sketcher.Constraint("Equal", 3, 8),
    Sketcher.Constraint("Equal", 15, 0),
    Sketcher.Constraint("Equal", 10, 4),
    Sketcher.Constraint("Equal", 2, 9),
    Sketcher.Constraint("DistanceX", 1, 2, 1, 1, Q("1.5 mm")),
    Sketcher.Constraint("DistanceX", 5, 1, 5, 2, Q("7 mm")),
    Sketcher.Constraint("DistanceY", 0, 2, -1, 1, Q("19.5 mm")),
    Sketcher.Constraint("DistanceX", 0, 2, 4, 2, Q("34.1 mm")),
    Sketcher.Constraint("DistanceX", 5, 2, 8, 2, Q("2.6 mm")),
    Sketcher.Constraint("DistanceY", 5, 2, 8, 2, Q("34.1 mm")),
    Sketcher.Constraint("DistanceX", 12, 2, 9, 2, Q("34.1 mm")),
    Sketcher.Constraint("DistanceY", 9, 2, 12, 2, Q("2.6 mm")),
])
sketch9.setExpression("Constraints[38]", "Params.sketch9_width")
sketch9.setExpression("Constraints[39]", "Params.sketch9_width2")
pocket8 = body.newObject("PartDesign::Pocket", "Pocket007")
pocket8.Profile = sketch9
pocket8.setExpression("Length", "Params.pocket8_length")
pocket8.Reversed = True

doc.recompute()
